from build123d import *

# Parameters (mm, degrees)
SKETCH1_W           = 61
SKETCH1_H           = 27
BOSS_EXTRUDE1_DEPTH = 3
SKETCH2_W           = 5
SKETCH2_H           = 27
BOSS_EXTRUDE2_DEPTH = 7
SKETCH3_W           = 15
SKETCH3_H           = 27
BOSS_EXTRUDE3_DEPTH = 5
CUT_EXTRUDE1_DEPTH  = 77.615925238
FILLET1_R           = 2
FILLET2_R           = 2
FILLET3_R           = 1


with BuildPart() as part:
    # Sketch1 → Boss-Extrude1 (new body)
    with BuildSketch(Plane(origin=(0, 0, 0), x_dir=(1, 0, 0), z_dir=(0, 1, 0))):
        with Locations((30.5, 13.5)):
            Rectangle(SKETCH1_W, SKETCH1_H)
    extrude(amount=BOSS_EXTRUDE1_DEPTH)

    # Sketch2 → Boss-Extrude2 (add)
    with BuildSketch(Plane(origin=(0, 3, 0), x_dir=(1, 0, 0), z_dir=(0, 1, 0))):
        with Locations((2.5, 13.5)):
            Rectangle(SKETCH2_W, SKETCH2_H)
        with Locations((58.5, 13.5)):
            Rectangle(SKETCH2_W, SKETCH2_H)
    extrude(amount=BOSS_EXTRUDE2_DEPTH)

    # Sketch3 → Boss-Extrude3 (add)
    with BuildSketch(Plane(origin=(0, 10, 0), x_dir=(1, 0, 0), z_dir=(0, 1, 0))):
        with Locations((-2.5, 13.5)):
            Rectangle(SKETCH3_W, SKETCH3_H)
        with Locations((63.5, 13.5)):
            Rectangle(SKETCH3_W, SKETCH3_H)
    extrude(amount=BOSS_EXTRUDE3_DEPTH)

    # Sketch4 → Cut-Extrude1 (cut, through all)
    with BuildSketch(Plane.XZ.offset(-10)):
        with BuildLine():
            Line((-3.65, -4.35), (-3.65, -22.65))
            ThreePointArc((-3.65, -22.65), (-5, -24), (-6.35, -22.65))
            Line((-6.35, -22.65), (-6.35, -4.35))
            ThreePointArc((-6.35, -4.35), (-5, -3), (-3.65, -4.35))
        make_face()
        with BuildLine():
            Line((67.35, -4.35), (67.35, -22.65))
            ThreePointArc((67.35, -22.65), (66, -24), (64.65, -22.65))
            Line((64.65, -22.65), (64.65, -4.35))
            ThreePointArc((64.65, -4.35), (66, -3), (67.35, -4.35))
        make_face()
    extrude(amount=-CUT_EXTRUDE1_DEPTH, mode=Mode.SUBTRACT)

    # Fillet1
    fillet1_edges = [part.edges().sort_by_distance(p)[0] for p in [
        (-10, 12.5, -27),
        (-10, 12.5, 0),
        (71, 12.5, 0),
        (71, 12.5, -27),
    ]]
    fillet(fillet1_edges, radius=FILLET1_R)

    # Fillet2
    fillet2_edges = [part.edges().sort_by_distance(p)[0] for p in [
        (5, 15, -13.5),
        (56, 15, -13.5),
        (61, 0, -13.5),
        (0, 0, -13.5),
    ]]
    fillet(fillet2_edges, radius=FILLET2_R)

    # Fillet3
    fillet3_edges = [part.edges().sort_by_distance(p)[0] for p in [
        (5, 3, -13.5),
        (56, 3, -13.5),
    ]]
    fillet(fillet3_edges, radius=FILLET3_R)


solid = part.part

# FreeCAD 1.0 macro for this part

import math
import FreeCAD as App
import Part
import Sketcher
Q = App.Units.Quantity


def edges_at(feature, points):
    """Names of the edges that pass closest to the given points."""
    edges = feature.Shape.Edges
    near = lambda p: min(range(len(edges)), key=lambda i: edges[i].distToShape(Part.Vertex(*p))[0])
    return sorted({f"Edge{near(p) + 1}" for p in points})


def add_polygon(sketch, points):
    """Adds a closed chain of lines whose ends are joined by coincident constraints."""
    first, n = sketch.GeometryCount, len(points)
    for a, b in zip(points, points[1:] + points[:1]):
        sketch.addGeometry(Part.LineSegment(App.Vector(*a, 0), App.Vector(*b, 0)), False)
    for i in range(n):
        sketch.addConstraint(Sketcher.Constraint("Coincident", first + i, 2, first + (i + 1) % n, 1))

doc = App.newDocument("Part")
body = doc.addObject("PartDesign::Body", "Body")

sketch1 = body.newObject("Sketcher::SketchObject", "Sketch")
sketch1.AttachmentSupport = (doc.getObject("XZ_Plane"), [""])
sketch1.MapMode = "FlatFace"
add_polygon(sketch1, [(0, -27), (0, 0), (61, 0), (61, -27)])
sketch1.addConstraint(Sketcher.Constraint("Vertical", 0))
sketch1.addConstraint(Sketcher.Constraint("Horizontal", 1))
sketch1.addConstraint(Sketcher.Constraint("Vertical", 2))
sketch1.addConstraint(Sketcher.Constraint("Horizontal", 3))
sketch1.addConstraint(Sketcher.Constraint("Coincident", 0, 2, -1, 1))
sketch1.addConstraint(Sketcher.Constraint("DistanceX", 1, 1, 1, 2, Q("61 mm")))
sketch1.addConstraint(Sketcher.Constraint("DistanceY", 0, 1, 0, 2, Q("27 mm")))
pad1 = body.newObject("PartDesign::Pad", "Pad")
pad1.Profile = sketch1
pad1.Length = 3
pad1.Reversed = True

sketch2 = body.newObject("Sketcher::SketchObject", "Sketch001")
sketch2.AttachmentSupport = (doc.getObject("XZ_Plane"), [""])
sketch2.MapMode = "FlatFace"
sketch2.AttachmentOffset = App.Placement(App.Vector(0, 0, -3), App.Rotation())
add_polygon(sketch2, [(0, -27), (0, 0), (5, 0), (5, -27)])
add_polygon(sketch2, [(56, -27), (56, 0), (61, 0), (61, -27)])
sketch2.addConstraint(Sketcher.Constraint("Vertical", 0))
sketch2.addConstraint(Sketcher.Constraint("Horizontal", 1))
sketch2.addConstraint(Sketcher.Constraint("Vertical", 2))
sketch2.addConstraint(Sketcher.Constraint("Horizontal", 3))
sketch2.addConstraint(Sketcher.Constraint("Vertical", 4))
sketch2.addConstraint(Sketcher.Constraint("Horizontal", 5))
sketch2.addConstraint(Sketcher.Constraint("Vertical", 6))
sketch2.addConstraint(Sketcher.Constraint("Horizontal", 7))
sketch2.addConstraint(Sketcher.Constraint("Coincident", 0, 2, -1, 1))
sketch2.addConstraint(Sketcher.Constraint("PointOnObject", 4, 2, -1))
sketch2.addConstraint(Sketcher.Constraint("Horizontal", 3, 2, 6, 2))
sketch2.addConstraint(Sketcher.Constraint("Equal", 3, 5))
sketch2.addConstraint(Sketcher.Constraint("DistanceX", 1, 1, 1, 2, Q("5 mm")))
sketch2.addConstraint(Sketcher.Constraint("DistanceY", 0, 1, 0, 2, Q("27 mm")))
sketch2.addConstraint(Sketcher.Constraint("DistanceX", -1, 1, 4, 2, Q("56 mm")))
pad2 = body.newObject("PartDesign::Pad", "Pad001")
pad2.Profile = sketch2
pad2.Length = 7
pad2.Reversed = True

sketch3 = body.newObject("Sketcher::SketchObject", "Sketch002")
sketch3.AttachmentSupport = (doc.getObject("XZ_Plane"), [""])
sketch3.MapMode = "FlatFace"
sketch3.AttachmentOffset = App.Placement(App.Vector(0, 0, -10), App.Rotation())
add_polygon(sketch3, [(-10, -27), (-10, 0), (5, 0), (5, -27)])
add_polygon(sketch3, [(56, -27), (56, 0), (71, 0), (71, -27)])
sketch3.addConstraint(Sketcher.Constraint("Vertical", 0))
sketch3.addConstraint(Sketcher.Constraint("Horizontal", 1))
sketch3.addConstraint(Sketcher.Constraint("Vertical", 2))
sketch3.addConstraint(Sketcher.Constraint("Horizontal", 3))
sketch3.addConstraint(Sketcher.Constraint("Vertical", 4))
sketch3.addConstraint(Sketcher.Constraint("Horizontal", 5))
sketch3.addConstraint(Sketcher.Constraint("Vertical", 6))
sketch3.addConstraint(Sketcher.Constraint("Horizontal", 7))
sketch3.addConstraint(Sketcher.Constraint("PointOnObject", 0, 2, -1))
sketch3.addConstraint(Sketcher.Constraint("PointOnObject", 4, 2, -1))
sketch3.addConstraint(Sketcher.Constraint("Horizontal", 3, 2, 6, 2))
sketch3.addConstraint(Sketcher.Constraint("Equal", 3, 5))
sketch3.addConstraint(Sketcher.Constraint("DistanceX", 1, 1, 1, 2, Q("15 mm")))
sketch3.addConstraint(Sketcher.Constraint("DistanceY", 0, 1, 0, 2, Q("27 mm")))
sketch3.addConstraint(Sketcher.Constraint("DistanceX", 0, 2, -1, 1, Q("10 mm")))
sketch3.addConstraint(Sketcher.Constraint("DistanceX", -1, 1, 4, 2, Q("56 mm")))
pad3 = body.newObject("PartDesign::Pad", "Pad002")
pad3.Profile = sketch3
pad3.Length = 5
pad3.Reversed = True

sketch4 = body.newObject("Sketcher::SketchObject", "Sketch003")
sketch4.AttachmentSupport = (doc.getObject("XZ_Plane"), [""])
sketch4.MapMode = "FlatFace"
sketch4.AttachmentOffset = App.Placement(App.Vector(0, 0, -10), App.Rotation())
sketch4.addGeometry(Part.LineSegment(App.Vector(-3.65, -22.65, 0), App.Vector(-3.65, -4.35, 0)), False)
sketch4.addGeometry(Part.ArcOfCircle(Part.Circle(App.Vector(-5, -4.35, 0), App.Vector(0, 0, 1), 1.35), math.radians(0), math.radians(180)), False)
sketch4.addGeometry(Part.LineSegment(App.Vector(-6.35, -4.35, 0), App.Vector(-6.35, -22.65, 0)), False)
sketch4.addGeometry(Part.ArcOfCircle(Part.Circle(App.Vector(-5, -22.65, 0), App.Vector(0, 0, 1), 1.35), math.radians(180), math.radians(360)), False)
sketch4.addGeometry(Part.LineSegment(App.Vector(67.35, -22.65, 0), App.Vector(67.35, -4.35, 0)), False)
sketch4.addGeometry(Part.ArcOfCircle(Part.Circle(App.Vector(66, -4.35, 0), App.Vector(0, 0, 1), 1.35), math.radians(0), math.radians(180)), False)
sketch4.addGeometry(Part.LineSegment(App.Vector(64.65, -4.35, 0), App.Vector(64.65, -22.65, 0)), False)
sketch4.addGeometry(Part.ArcOfCircle(Part.Circle(App.Vector(66, -22.65, 0), App.Vector(0, 0, 1), 1.35), math.radians(180), math.radians(360)), False)
sketch4.addConstraint(Sketcher.Constraint("Tangent", 0, 2, 1, 1))
sketch4.addConstraint(Sketcher.Constraint("Tangent", 1, 2, 2, 1))
sketch4.addConstraint(Sketcher.Constraint("Tangent", 2, 2, 3, 1))
sketch4.addConstraint(Sketcher.Constraint("Tangent", 3, 2, 0, 1))
sketch4.addConstraint(Sketcher.Constraint("Tangent", 4, 2, 5, 1))
sketch4.addConstraint(Sketcher.Constraint("Tangent", 5, 2, 6, 1))
sketch4.addConstraint(Sketcher.Constraint("Tangent", 6, 2, 7, 1))
sketch4.addConstraint(Sketcher.Constraint("Tangent", 7, 2, 4, 1))
sketch4.addConstraint(Sketcher.Constraint("Vertical", 0))
sketch4.addConstraint(Sketcher.Constraint("Vertical", 2))
sketch4.addConstraint(Sketcher.Constraint("Vertical", 4))
sketch4.addConstraint(Sketcher.Constraint("Vertical", 6))
sketch4.addConstraint(Sketcher.Constraint("Equal", 3, 5))
sketch4.addConstraint(Sketcher.Constraint("Horizontal", 1, 3, 5, 3))
sketch4.addConstraint(Sketcher.Constraint("Horizontal", 3, 3, 7, 3))
sketch4.addConstraint(Sketcher.Constraint("Radius", 1, Q("1.35 mm")))
sketch4.addConstraint(Sketcher.Constraint("DistanceY", 0, 1, 0, 2, Q("18.3 mm")))
sketch4.addConstraint(Sketcher.Constraint("DistanceX", 1, 3, -1, 1, Q("5 mm")))
sketch4.addConstraint(Sketcher.Constraint("DistanceX", -1, 1, 5, 3, Q("66 mm")))
sketch4.addConstraint(Sketcher.Constraint("DistanceY", 1, 3, -1, 1, Q("4.35 mm")))
pocket1 = body.newObject("PartDesign::Pocket", "Pocket")
pocket1.Profile = sketch4
pocket1.Type = "ThroughAll"
doc.recompute()

fillet = body.newObject("PartDesign::Fillet", "Fillet")
fillet.Base = (pocket1, edges_at(pocket1, [
    (-10, 12.5, -27),
    (-10, 12.5, 0),
    (71, 12.5, 0),
    (71, 12.5, -27),
]))
fillet.Radius = 2
doc.recompute()

fillet2 = body.newObject("PartDesign::Fillet", "Fillet001")
fillet2.Base = (fillet, edges_at(fillet, [
    (5, 15, -13.5),
    (56, 15, -13.5),
    (61, 0, -13.5),
    (0, 0, -13.5),
]))
fillet2.Radius = 2
doc.recompute()

fillet3 = body.newObject("PartDesign::Fillet", "Fillet002")
fillet3.Base = (fillet2, edges_at(fillet2, [(5, 3, -13.5), (56, 3, -13.5)]))
fillet3.Radius = 1

doc.recompute()
